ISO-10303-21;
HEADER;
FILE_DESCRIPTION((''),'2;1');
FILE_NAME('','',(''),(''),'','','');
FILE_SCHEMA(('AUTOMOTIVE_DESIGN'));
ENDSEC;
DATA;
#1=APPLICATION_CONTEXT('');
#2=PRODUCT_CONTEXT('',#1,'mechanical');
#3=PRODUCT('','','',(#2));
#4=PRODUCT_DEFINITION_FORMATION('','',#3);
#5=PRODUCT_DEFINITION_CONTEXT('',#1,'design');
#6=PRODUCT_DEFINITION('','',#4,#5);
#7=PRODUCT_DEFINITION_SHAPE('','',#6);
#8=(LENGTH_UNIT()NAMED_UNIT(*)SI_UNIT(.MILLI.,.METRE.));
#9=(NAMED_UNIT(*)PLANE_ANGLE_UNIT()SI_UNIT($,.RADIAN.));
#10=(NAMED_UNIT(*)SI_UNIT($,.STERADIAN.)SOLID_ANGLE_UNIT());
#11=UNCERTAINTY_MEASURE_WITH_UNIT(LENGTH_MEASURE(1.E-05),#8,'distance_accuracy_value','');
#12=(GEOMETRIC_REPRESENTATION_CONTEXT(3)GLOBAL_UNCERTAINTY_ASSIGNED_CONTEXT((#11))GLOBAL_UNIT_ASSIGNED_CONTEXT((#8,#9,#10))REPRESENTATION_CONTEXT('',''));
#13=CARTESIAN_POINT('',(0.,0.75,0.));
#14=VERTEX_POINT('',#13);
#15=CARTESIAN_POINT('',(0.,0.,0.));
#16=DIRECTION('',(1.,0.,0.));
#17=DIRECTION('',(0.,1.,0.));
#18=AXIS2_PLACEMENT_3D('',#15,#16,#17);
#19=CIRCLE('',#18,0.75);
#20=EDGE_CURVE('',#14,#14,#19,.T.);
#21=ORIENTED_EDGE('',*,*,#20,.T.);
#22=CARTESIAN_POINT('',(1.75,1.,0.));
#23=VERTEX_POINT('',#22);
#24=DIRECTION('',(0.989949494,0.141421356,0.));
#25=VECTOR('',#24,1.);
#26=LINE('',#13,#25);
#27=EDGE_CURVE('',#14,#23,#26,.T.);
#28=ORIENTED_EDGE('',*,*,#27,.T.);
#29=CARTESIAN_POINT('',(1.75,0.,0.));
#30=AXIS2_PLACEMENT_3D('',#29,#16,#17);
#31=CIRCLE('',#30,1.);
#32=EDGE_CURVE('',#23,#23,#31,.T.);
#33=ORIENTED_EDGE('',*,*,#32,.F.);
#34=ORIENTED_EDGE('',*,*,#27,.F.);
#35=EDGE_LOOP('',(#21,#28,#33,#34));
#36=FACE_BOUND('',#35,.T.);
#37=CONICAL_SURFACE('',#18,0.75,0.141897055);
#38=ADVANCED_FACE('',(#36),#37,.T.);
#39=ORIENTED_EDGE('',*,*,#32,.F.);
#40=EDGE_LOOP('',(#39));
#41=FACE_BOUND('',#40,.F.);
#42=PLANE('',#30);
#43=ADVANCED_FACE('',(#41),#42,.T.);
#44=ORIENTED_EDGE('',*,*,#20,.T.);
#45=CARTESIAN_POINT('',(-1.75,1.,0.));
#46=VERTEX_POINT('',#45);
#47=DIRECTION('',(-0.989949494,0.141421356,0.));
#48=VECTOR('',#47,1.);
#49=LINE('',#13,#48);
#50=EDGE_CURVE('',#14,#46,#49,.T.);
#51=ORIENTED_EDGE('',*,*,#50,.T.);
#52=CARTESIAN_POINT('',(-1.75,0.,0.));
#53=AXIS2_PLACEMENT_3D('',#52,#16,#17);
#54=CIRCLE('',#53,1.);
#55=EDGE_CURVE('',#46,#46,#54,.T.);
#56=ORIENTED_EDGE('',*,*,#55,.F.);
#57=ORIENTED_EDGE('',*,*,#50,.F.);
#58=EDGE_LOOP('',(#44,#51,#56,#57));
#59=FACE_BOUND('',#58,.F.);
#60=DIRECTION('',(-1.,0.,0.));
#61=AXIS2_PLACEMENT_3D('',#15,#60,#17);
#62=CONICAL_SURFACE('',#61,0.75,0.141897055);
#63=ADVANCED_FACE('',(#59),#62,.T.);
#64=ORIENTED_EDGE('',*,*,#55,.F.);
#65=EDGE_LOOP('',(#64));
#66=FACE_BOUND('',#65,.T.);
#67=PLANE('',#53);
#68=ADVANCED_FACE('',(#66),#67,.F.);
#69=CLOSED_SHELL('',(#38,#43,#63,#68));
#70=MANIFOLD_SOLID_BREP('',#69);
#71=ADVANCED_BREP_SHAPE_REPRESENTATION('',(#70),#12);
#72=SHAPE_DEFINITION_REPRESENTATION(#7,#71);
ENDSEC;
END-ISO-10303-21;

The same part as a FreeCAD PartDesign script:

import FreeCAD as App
import Part
import Sketcher

V = App.Vector

doc = App.newDocument("Part")
body = doc.addObject("PartDesign::Body", "Body")

# Sketch on XY plane
sketch1 = body.newObject("Sketcher::SketchObject", "Sketch")
sketch1.AttachmentSupport = (doc.getObject("XY_Plane"), [""])
sketch1.MapMode = "FlatFace"
sketch1.addGeometry(Part.LineSegment(V(1.75, 1, 0), V(0, 0.75, 0)), False)
sketch1.addGeometry(Part.LineSegment(V(0, 0.75, 0), V(-1.75, 1, 0)), False)
sketch1.addGeometry(Part.LineSegment(V(-1.75, 1, 0), V(-1.75, 0, 0)), False)
sketch1.addGeometry(Part.LineSegment(V(-1.75, 0, 0), V(1.75, 0, 0)), False)
sketch1.addGeometry(Part.LineSegment(V(1.75, 0, 0), V(1.75, 1, 0)), False)
sketch1.addConstraint(Sketcher.Constraint("Coincident", 0, 2, 1, 1))
sketch1.addConstraint(Sketcher.Constraint("Coincident", 1, 2, 2, 1))
sketch1.addConstraint(Sketcher.Constraint("Coincident", 2, 2, 3, 1))
sketch1.addConstraint(Sketcher.Constraint("Coincident", 3, 2, 4, 1))
sketch1.addConstraint(Sketcher.Constraint("Coincident", 4, 2, 0, 1))
sketch1.addConstraint(Sketcher.Constraint("Vertical", 2))
sketch1.addConstraint(Sketcher.Constraint("Horizontal", 3))
sketch1.addConstraint(Sketcher.Constraint("Vertical", 4))
sketch1.addConstraint(Sketcher.Constraint("Symmetric", 2, 2, 3, 2, -1, 1))
sketch1.addConstraint(Sketcher.Constraint("PointOnObject", 0, 2, -2))
sketch1.addConstraint(Sketcher.Constraint("Horizontal", 1, 2, 4, 2))
sketch1.addConstraint(Sketcher.Constraint("DistanceY", 2, 2, 2, 1, 1.0))
sketch1.addConstraint(Sketcher.Constraint("DistanceY", -1, 1, 0, 2, 0.75))
sketch1.addConstraint(Sketcher.Constraint("DistanceX", 1, 2, -1, 1, 1.75))
revolution = body.newObject("PartDesign::Revolution", "Revolution")
revolution.Profile = sketch1
revolution.ReferenceAxis = (sketch1, ["H_Axis"])
revolution.Angle = 360

doc.recompute()
